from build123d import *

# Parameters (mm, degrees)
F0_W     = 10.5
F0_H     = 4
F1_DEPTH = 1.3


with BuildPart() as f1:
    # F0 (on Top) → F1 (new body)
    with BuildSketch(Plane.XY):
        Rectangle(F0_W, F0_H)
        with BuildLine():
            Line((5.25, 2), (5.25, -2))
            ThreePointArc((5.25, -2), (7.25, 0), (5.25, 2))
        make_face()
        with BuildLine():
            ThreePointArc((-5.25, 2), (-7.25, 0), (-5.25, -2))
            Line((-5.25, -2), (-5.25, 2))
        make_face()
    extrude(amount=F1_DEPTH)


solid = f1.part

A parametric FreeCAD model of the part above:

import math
import FreeCAD as App
import Part
import Sketcher
Q = App.Units.Quantity

doc = App.newDocument("Part")
body = doc.addObject("PartDesign::Body", "Body")

sketch1 = body.newObject("Sketcher::SketchObject", "Sketch")
sketch1.AttachmentSupport = (doc.getObject("XY_Plane"), [""])
sketch1.MapMode = "FlatFace"
sketch1.addGeometry(Part.LineSegment(App.Vector(-5.2, -2, 0), App.Vector(5.2, -2, 0)), False)
sketch1.addGeometry(Part.ArcOfCircle(Part.Circle(App.Vector(5.2, 0, 0), App.Vector(0, 0, 1), 2), math.radians(-90), math.radians(90)), False)
sketch1.addGeometry(Part.LineSegment(App.Vector(5.2, 2, 0), App.Vector(-5.2, 2, 0)), False)
sketch1.addGeometry(Part.ArcOfCircle(Part.Circle(App.Vector(-5.2, 0, 0), App.Vector(0, 0, 1), 2), math.radians(90), math.radians(270)), False)
sketch1.addConstraint(Sketcher.Constraint("Tangent", 0, 2, 1, 1))
sketch1.addConstraint(Sketcher.Constraint("Tangent", 1, 2, 2, 1))
sketch1.addConstraint(Sketcher.Constraint("Tangent", 2, 2, 3, 1))
sketch1.addConstraint(Sketcher.Constraint("Tangent", 3, 2, 0, 1))
sketch1.addConstraint(Sketcher.Constraint("Horizontal", 0))
sketch1.addConstraint(Sketcher.Constraint("Horizontal", 2))
sketch1.addConstraint(Sketcher.Constraint("Symmetric", 1, 3, 3, 3, -1, 1))
sketch1.addConstraint(Sketcher.Constraint("Radius", 1, Q("2 mm")))
sketch1.addConstraint(Sketcher.Constraint("DistanceX", 0, 1, 0, 2, Q("10.5 mm")))
pad1 = body.newObject("PartDesign::Pad", "Pad")
pad1.Profile = sketch1
pad1.Length = 1.3

doc.recompute()
